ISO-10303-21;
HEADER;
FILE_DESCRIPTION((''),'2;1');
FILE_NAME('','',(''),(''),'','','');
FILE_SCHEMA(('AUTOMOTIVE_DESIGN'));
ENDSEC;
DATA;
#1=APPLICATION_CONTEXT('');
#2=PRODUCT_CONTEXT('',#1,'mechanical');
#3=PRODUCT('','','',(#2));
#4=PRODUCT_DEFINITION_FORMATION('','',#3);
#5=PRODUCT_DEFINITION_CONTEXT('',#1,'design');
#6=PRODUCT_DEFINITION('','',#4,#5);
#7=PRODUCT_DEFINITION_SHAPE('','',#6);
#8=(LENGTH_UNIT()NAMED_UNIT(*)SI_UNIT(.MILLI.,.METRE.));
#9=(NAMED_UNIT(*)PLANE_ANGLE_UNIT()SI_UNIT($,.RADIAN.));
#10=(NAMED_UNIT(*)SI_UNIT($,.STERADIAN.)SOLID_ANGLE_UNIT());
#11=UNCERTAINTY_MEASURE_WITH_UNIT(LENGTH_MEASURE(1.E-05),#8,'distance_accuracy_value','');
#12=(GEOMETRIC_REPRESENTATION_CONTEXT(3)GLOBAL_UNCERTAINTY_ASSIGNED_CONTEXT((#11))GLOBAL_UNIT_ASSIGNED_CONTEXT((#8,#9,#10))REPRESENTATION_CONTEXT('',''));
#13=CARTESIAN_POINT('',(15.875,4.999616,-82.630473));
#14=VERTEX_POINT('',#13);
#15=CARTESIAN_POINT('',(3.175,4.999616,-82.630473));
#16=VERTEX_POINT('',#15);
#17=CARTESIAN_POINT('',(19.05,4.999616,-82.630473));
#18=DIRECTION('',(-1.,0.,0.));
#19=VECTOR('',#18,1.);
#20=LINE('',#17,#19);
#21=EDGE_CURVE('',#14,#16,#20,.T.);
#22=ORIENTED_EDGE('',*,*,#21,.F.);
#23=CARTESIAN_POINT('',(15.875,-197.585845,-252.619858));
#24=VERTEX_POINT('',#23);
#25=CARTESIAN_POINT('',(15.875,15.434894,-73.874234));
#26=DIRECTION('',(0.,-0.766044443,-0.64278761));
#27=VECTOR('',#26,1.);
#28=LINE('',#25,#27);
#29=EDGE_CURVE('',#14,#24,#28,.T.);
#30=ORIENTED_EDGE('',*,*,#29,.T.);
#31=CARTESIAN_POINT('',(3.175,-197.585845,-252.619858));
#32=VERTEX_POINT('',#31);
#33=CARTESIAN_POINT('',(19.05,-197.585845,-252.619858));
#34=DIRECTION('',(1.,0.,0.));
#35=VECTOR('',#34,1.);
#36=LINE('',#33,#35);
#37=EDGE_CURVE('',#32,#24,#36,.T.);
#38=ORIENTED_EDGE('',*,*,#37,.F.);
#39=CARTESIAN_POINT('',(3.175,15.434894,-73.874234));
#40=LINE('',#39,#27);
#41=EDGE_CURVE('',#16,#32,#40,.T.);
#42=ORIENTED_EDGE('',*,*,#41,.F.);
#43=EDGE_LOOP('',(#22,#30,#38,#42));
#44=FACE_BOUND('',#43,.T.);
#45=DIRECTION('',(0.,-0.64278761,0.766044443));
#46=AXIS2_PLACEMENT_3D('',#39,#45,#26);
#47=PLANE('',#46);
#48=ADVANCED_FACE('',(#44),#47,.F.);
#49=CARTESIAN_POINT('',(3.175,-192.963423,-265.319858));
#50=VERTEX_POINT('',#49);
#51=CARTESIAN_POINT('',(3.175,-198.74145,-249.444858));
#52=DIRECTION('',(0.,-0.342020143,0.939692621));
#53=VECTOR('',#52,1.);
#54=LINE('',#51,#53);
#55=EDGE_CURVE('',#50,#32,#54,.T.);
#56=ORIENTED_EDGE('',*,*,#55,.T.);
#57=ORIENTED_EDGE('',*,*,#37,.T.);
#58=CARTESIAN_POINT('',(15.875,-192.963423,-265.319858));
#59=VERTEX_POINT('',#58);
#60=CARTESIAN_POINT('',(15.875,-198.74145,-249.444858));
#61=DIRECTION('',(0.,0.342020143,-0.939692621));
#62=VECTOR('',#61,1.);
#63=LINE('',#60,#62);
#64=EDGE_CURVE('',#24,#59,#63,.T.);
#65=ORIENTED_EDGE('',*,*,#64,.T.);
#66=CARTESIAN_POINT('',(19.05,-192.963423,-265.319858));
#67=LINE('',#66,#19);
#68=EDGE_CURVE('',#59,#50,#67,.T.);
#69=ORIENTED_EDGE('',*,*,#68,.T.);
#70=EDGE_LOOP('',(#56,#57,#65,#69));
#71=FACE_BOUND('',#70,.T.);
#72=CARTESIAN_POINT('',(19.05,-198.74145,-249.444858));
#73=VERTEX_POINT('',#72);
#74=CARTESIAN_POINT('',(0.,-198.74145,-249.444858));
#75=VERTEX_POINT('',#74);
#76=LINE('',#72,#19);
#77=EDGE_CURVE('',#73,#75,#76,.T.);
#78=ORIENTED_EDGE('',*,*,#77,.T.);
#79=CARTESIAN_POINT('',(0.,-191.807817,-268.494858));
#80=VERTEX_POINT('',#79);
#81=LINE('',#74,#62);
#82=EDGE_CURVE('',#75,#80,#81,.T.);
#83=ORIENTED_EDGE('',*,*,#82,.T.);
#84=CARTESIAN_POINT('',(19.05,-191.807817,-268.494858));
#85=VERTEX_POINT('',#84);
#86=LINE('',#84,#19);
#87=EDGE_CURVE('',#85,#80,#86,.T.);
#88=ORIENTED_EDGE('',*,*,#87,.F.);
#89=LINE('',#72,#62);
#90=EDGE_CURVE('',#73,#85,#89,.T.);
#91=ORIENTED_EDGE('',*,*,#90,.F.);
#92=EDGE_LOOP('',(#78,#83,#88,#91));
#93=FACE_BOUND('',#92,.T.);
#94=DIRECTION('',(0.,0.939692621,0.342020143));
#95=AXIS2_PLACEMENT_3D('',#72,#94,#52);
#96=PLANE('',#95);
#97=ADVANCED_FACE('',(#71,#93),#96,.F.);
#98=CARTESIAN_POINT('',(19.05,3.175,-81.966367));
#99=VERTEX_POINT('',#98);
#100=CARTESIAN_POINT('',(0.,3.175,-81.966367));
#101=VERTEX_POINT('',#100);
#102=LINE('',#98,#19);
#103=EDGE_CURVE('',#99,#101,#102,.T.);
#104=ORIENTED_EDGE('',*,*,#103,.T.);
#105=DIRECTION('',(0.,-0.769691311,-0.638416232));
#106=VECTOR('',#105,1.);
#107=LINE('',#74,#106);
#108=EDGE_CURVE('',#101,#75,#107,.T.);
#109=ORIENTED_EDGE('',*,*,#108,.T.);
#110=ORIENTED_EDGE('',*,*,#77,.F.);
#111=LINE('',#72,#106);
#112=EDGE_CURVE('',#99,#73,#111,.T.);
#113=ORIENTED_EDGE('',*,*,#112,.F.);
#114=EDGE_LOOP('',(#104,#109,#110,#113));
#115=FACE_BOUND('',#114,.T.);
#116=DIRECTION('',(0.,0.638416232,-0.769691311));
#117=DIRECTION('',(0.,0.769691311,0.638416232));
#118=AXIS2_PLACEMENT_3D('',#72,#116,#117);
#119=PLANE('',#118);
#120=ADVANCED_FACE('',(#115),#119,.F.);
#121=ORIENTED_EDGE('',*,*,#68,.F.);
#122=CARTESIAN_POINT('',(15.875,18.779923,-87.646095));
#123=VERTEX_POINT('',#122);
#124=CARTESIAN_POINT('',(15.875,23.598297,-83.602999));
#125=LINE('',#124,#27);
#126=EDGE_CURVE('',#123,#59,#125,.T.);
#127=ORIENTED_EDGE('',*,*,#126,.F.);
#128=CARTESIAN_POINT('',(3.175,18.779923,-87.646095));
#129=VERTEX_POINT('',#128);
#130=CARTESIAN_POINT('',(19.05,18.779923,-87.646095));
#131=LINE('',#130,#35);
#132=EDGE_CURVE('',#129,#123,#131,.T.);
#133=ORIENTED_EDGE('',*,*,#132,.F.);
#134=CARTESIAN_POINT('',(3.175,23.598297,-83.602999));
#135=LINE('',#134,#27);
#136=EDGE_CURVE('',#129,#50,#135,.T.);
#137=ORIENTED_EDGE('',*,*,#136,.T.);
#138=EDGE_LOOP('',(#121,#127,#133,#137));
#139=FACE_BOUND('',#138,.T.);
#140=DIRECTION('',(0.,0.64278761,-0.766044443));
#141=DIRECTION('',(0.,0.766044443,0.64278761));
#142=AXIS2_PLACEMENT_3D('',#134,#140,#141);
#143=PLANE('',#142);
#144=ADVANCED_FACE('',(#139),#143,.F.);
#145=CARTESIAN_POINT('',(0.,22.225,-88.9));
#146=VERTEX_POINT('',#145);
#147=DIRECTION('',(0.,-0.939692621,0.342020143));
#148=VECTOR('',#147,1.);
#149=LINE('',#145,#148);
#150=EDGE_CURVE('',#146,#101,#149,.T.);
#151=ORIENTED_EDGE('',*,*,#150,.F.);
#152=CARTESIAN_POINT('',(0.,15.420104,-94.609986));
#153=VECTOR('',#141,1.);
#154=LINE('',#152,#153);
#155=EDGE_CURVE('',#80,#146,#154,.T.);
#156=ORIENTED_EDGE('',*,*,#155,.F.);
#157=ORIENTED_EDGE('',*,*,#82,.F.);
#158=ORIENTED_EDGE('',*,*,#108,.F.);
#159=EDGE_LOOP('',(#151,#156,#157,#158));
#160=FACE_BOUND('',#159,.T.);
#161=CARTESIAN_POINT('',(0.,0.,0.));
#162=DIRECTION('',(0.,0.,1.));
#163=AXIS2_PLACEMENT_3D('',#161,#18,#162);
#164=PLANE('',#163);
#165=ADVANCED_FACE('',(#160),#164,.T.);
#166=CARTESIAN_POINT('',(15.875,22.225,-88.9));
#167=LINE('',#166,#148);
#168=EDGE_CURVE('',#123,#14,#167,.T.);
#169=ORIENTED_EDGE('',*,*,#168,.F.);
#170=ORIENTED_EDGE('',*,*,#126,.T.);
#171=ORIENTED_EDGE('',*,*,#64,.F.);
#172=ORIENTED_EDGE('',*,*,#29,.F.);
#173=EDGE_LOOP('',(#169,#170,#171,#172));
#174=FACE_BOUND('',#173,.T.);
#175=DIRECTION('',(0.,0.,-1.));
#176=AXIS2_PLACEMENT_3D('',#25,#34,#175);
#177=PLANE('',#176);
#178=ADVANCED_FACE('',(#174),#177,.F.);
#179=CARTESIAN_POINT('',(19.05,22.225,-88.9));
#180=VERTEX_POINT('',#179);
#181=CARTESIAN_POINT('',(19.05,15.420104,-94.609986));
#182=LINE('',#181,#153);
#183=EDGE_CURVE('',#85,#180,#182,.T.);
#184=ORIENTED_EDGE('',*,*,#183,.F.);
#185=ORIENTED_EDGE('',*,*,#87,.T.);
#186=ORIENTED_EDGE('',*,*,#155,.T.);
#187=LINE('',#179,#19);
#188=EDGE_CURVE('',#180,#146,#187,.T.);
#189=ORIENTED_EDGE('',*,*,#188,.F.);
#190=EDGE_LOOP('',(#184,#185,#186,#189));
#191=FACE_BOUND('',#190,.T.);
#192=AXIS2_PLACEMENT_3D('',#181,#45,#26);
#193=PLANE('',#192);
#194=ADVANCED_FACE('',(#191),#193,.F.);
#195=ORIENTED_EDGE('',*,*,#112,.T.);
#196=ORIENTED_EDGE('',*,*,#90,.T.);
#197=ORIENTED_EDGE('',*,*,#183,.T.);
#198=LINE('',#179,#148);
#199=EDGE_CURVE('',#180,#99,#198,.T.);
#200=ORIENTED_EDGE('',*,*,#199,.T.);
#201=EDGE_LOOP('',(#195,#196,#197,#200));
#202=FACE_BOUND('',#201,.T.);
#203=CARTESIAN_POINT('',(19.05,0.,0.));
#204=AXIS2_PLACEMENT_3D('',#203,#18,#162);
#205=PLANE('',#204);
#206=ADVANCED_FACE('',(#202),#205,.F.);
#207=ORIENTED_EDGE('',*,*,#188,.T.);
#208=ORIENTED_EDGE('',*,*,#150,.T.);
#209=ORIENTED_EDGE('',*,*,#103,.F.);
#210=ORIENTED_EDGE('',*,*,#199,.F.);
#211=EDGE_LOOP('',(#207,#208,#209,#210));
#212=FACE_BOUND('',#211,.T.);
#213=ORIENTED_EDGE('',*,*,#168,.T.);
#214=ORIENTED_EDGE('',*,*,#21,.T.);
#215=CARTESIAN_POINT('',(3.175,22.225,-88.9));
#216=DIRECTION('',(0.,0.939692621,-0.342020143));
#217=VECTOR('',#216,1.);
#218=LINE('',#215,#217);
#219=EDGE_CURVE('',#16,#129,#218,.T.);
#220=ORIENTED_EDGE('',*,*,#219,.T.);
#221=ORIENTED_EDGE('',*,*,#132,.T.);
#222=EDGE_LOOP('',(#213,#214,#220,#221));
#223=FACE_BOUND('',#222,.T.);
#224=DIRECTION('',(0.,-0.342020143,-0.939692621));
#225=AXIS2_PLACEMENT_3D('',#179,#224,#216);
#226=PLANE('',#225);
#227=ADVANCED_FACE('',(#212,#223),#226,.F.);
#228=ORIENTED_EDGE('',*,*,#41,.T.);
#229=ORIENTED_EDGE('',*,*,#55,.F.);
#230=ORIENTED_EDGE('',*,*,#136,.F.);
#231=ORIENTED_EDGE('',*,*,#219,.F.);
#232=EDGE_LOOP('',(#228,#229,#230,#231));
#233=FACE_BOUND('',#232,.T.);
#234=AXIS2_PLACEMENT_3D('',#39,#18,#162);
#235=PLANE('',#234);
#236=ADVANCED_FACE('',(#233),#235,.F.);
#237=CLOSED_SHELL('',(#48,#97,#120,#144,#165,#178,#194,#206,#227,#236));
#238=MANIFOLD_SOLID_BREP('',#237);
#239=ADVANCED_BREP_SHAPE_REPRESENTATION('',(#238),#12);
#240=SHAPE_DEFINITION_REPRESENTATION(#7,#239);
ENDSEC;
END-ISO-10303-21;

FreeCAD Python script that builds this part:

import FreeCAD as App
import Part
import Sketcher
from FreeCAD import Vector
Q = App.Units.Quantity

doc = App.newDocument("Part")
body = doc.addObject("PartDesign::Body", "Body")

# Sketch on YZ plane
sketch1 = body.newObject("Sketcher::SketchObject", "Sketch")
sketch1.AttachmentSupport = (doc.getObject("YZ_Plane"), [""])
sketch1.MapMode = "FlatFace"
sketch1.addGeometry([
    Part.LineSegment(Vector(-199, -249, 0), Vector(-192, -268, 0)),  # 0
    Part.LineSegment(Vector(-192, -268, 0), Vector(15, -95, 0)),  # 1
    Part.LineSegment(Vector(15, -95, 0), Vector(22, -89, 0)),  # 2
    Part.LineSegment(Vector(22, -89, 0), Vector(3, -82, 0)),  # 3
    Part.LineSegment(Vector(3, -82, 0), Vector(-199, -249, 0)),  # 4
], False)
sketch1.addConstraint([
    Sketcher.Constraint("Coincident", 0, 2, 1, 1),
    Sketcher.Constraint("Coincident", 1, 2, 2, 1),
    Sketcher.Constraint("Coincident", 2, 2, 3, 1),
    Sketcher.Constraint("Coincident", 3, 2, 4, 1),
    Sketcher.Constraint("Coincident", 4, 2, 0, 1),
    Sketcher.Constraint("Parallel", 1, 2),
    Sketcher.Constraint("Equal", 0, 3),
    Sketcher.Constraint("Angle", 0, Q("-70 deg")),
    Sketcher.Constraint("Angle", 1, Q("40 deg")),
    Sketcher.Constraint("Angle", 3, Q("160 deg")),
    Sketcher.Constraint("DistanceY", 2, 2, -1, 1, Q("3.5 in")),
    Sketcher.Constraint("DistanceX", 3, 2, 2, 2, Q("0.75 in")),
    Sketcher.Constraint("DistanceX", -1, 1, 2, 2, Q("0.875 in")),
    Sketcher.Constraint("Distance", 1, 270.516839),
    Sketcher.Constraint("Distance", 2, 8.883161),
])
pad1 = body.newObject("PartDesign::Pad", "Pad")
pad1.Profile = sketch1
pad1.Length = Q("0.75 in")

# Sketch on an angled plane
sketch2 = body.newObject("Sketcher::SketchObject", "Sketch001")
sketch2.Placement = App.Placement(Vector(0, -244.765357, -205.382521), App.Rotation(Vector(-1, 0, 0), Vector(0, 0.64278761, -0.766044443), Vector(0, -0.766044443, -0.64278761), "ZXY"))
sketch2.addGeometry([
    Part.LineSegment(Vector(-16, 79, 0), Vector(-16, 67, 0)),
    Part.LineSegment(Vector(-16, 67, 0), Vector(-3, 67, 0)),
    Part.LineSegment(Vector(-3, 67, 0), Vector(-3, 79, 0)),
    Part.LineSegment(Vector(-3, 79, 0), Vector(-16, 79, 0)),
], False)
sketch2.addConstraint([
    Sketcher.Constraint("Coincident", 0, 2, 1, 1),
    Sketcher.Constraint("Coincident", 1, 2, 2, 1),
    Sketcher.Constraint("Coincident", 2, 2, 3, 1),
    Sketcher.Constraint("Coincident", 3, 2, 0, 1),
    Sketcher.Constraint("Vertical", 0),
    Sketcher.Constraint("Horizontal", 1),
    Sketcher.Constraint("Vertical", 2),
    Sketcher.Constraint("Horizontal", 3),
    Sketcher.Constraint("Equal", 3, 0),
    Sketcher.Constraint("DistanceX", 1, 1, 1, 2, Q("0.5 in")),
    Sketcher.Constraint("DistanceX", 0, 2, -1, 1, Q("0.625 in")),
    Sketcher.Constraint("DistanceY", -1, 1, 0, 2, 66.512306),
])
pocket1 = body.newObject("PartDesign::Pocket", "Pocket")
pocket1.Profile = sketch2
pocket1.Type = "ThroughAll"
pocket1.Midplane = True

doc.recompute()
